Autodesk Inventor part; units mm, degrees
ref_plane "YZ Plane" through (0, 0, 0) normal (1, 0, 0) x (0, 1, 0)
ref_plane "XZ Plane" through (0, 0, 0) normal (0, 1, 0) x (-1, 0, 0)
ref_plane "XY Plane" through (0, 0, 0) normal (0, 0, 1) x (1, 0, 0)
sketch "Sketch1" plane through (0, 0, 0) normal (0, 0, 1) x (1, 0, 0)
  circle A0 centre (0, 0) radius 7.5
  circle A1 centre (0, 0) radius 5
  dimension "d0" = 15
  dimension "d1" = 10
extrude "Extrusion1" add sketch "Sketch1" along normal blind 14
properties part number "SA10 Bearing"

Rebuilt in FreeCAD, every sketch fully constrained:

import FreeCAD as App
import Part
import Sketcher
from FreeCAD import Vector
Q = App.Units.Quantity

doc = App.newDocument("Part")
body = doc.addObject("PartDesign::Body", "Body")

sketch1 = body.newObject("Sketcher::SketchObject", "Sketch")
sketch1.AttachmentSupport = (doc.getObject("XY_Plane"), [""])
sketch1.MapMode = "FlatFace"
sketch1.addGeometry(Part.Circle(Vector(0, 0, 0), Vector(0, 0, 1), 8), False)
sketch1.addGeometry(Part.Circle(Vector(0, 0, 0), Vector(0, 0, 1), 5), False)
sketch1.addConstraint(Sketcher.Constraint("Coincident", 0, 3, -1, 1))
sketch1.addConstraint(Sketcher.Constraint("Coincident", 1, 3, -1, 1))
sketch1.addConstraint(Sketcher.Constraint("Diameter", 0, Q("15 mm")))
sketch1.addConstraint(Sketcher.Constraint("Diameter", 1, Q("10 mm")))
pad1 = body.newObject("PartDesign::Pad", "Pad")
pad1.Profile = sketch1
pad1.Length = 14

doc.recompute()
